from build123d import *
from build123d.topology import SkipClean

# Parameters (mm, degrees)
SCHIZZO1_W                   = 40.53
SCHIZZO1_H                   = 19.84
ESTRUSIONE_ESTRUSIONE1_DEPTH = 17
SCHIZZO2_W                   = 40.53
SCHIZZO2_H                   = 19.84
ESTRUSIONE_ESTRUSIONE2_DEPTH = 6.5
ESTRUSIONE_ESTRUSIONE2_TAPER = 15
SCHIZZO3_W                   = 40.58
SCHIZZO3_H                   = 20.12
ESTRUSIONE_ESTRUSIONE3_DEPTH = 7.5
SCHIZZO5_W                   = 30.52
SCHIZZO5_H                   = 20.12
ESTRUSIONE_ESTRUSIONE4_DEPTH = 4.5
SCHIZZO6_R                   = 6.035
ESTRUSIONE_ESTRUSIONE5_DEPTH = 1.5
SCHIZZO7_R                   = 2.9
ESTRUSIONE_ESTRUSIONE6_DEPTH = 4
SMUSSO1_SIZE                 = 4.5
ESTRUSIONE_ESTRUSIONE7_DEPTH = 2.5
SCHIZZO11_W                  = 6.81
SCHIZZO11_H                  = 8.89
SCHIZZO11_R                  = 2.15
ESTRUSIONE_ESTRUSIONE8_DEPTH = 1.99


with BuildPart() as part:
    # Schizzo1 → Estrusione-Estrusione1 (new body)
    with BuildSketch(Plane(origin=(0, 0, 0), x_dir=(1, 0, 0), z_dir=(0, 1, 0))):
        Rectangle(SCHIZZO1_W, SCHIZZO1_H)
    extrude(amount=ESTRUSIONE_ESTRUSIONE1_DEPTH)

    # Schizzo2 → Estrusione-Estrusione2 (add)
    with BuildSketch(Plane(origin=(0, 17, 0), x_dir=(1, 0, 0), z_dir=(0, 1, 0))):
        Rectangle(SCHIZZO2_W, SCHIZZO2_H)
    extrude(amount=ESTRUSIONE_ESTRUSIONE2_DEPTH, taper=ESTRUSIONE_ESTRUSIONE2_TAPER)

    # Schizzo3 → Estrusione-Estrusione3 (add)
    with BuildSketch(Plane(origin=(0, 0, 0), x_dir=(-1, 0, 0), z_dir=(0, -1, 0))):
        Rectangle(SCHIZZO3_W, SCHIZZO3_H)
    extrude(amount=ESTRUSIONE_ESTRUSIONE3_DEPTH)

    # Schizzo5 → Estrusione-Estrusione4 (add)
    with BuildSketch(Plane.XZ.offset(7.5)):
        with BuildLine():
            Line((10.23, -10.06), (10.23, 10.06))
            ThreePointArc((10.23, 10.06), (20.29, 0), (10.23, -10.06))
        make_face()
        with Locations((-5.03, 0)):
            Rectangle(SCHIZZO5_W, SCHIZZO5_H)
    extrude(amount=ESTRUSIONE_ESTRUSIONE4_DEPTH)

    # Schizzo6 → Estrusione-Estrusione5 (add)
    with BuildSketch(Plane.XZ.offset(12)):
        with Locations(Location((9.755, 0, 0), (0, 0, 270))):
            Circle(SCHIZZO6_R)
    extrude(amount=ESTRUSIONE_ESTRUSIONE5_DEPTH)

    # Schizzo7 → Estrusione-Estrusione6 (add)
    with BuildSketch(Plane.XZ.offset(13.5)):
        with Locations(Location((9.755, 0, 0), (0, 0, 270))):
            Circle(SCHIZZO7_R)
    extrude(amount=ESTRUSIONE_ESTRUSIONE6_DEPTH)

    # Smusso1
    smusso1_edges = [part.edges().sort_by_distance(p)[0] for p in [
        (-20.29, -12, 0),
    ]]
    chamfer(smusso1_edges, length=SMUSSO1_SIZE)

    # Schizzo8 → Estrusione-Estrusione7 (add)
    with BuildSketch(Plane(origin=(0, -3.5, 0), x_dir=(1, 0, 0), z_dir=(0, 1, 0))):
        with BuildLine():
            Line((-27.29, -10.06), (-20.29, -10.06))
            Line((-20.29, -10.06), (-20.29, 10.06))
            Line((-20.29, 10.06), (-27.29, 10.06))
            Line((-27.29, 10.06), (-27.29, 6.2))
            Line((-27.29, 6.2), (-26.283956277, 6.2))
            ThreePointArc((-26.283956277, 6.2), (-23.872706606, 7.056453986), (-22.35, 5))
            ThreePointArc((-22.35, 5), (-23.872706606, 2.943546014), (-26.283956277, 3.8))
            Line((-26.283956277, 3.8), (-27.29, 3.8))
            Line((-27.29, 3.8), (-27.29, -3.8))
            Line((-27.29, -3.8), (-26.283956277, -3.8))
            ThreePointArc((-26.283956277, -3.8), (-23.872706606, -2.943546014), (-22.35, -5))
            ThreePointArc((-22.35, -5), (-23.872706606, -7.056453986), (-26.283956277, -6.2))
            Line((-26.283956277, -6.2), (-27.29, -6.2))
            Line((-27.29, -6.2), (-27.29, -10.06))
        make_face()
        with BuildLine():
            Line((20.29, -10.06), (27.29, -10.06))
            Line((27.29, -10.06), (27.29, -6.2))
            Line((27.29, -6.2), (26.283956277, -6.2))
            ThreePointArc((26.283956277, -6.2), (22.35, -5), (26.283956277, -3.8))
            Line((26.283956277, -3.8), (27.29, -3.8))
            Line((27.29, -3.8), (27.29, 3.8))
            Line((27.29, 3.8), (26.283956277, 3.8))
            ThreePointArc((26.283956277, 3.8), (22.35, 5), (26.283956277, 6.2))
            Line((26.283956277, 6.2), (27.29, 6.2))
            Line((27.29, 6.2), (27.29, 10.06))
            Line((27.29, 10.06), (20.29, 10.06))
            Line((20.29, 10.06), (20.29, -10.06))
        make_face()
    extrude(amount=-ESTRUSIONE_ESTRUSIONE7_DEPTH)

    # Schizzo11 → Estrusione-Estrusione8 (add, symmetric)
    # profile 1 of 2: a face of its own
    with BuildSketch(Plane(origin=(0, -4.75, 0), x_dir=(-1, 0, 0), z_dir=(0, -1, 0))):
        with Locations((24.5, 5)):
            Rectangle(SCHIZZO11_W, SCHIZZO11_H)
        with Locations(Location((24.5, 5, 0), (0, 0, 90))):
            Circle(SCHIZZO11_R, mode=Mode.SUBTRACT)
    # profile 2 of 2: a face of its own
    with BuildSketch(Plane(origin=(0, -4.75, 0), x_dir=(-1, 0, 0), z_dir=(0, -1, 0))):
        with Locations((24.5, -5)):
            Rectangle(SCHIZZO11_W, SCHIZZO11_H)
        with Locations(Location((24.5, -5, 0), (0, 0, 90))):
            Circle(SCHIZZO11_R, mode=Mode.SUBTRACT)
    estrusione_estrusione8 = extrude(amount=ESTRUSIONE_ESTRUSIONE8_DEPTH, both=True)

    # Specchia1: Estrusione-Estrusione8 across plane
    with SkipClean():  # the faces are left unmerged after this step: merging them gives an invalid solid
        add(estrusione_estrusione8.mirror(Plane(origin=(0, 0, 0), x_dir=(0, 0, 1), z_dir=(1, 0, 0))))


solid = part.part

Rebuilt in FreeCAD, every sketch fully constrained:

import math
import FreeCAD as App
import Part
import Sketcher

V = App.Vector


def edges_at(feature, points):
    """Names of the edges that pass closest to the given points."""
    edges = feature.Shape.Edges
    near = lambda p: min(range(len(edges)), key=lambda i: edges[i].distToShape(Part.Vertex(*p))[0])
    return sorted({f"Edge{near(p) + 1}" for p in points})

doc = App.newDocument("Part")
body = doc.addObject("PartDesign::Body", "Body")

# Sketch on XZ plane
sketch1 = body.newObject("Sketcher::SketchObject", "Sketch")
sketch1.AttachmentSupport = (doc.getObject("XZ_Plane"), [""])
sketch1.MapMode = "FlatFace"
sketch1.addGeometry([
    Part.LineSegment(V(-20.265, -9.92, 0), V(-20.265, 9.92, 0)),
    Part.LineSegment(V(-20.265, 9.92, 0), V(20.265, 9.92, 0)),
    Part.LineSegment(V(20.265, 9.92, 0), V(20.265, -9.92, 0)),
    Part.LineSegment(V(20.265, -9.92, 0), V(-20.265, -9.92, 0)),
], False)
sketch1.addConstraint([
    Sketcher.Constraint("Coincident", 0, 2, 1, 1),
    Sketcher.Constraint("Coincident", 1, 2, 2, 1),
    Sketcher.Constraint("Coincident", 2, 2, 3, 1),
    Sketcher.Constraint("Coincident", 3, 2, 0, 1),
    Sketcher.Constraint("Vertical", 0),
    Sketcher.Constraint("Horizontal", 1),
    Sketcher.Constraint("Vertical", 2),
    Sketcher.Constraint("Horizontal", 3),
    Sketcher.Constraint("Symmetric", 0, 2, 2, 2, -1, 1),
    Sketcher.Constraint("DistanceX", 1, 1, 1, 2, 40.53),
    Sketcher.Constraint("DistanceY", 0, 1, 0, 2, 19.84),
])
pad1 = body.newObject("PartDesign::Pad", "Pad")
pad1.Profile = sketch1
pad1.Length = 17
pad1.Reversed = True

# Sketch on XZ plane
sketch2 = body.newObject("Sketcher::SketchObject", "Sketch001")
sketch2.AttachmentSupport = (doc.getObject("XZ_Plane"), [""])
sketch2.MapMode = "FlatFace"
sketch2.AttachmentOffset = App.Placement(V(0, 0, -17), App.Rotation())
sketch2.addGeometry([
    Part.LineSegment(V(-20.265, -9.92, 0), V(-20.265, 9.92, 0)),
    Part.LineSegment(V(-20.265, 9.92, 0), V(20.265, 9.92, 0)),
    Part.LineSegment(V(20.265, 9.92, 0), V(20.265, -9.92, 0)),
    Part.LineSegment(V(20.265, -9.92, 0), V(-20.265, -9.92, 0)),
], False)
sketch2.addConstraint([
    Sketcher.Constraint("Coincident", 0, 2, 1, 1),
    Sketcher.Constraint("Coincident", 1, 2, 2, 1),
    Sketcher.Constraint("Coincident", 2, 2, 3, 1),
    Sketcher.Constraint("Coincident", 3, 2, 0, 1),
    Sketcher.Constraint("Vertical", 0),
    Sketcher.Constraint("Horizontal", 1),
    Sketcher.Constraint("Vertical", 2),
    Sketcher.Constraint("Horizontal", 3),
    Sketcher.Constraint("Symmetric", 0, 2, 2, 2, -1, 1),
    Sketcher.Constraint("DistanceX", 1, 1, 1, 2, 40.53),
    Sketcher.Constraint("DistanceY", 0, 1, 0, 2, 19.84),
])
pad2 = body.newObject("PartDesign::Pad", "Pad001")
pad2.Profile = sketch2
pad2.Length = 6.5
pad2.Reversed = True
pad2.TaperAngle = -15

# Sketch on XZ plane
sketch3 = body.newObject("Sketcher::SketchObject", "Sketch002")
sketch3.AttachmentSupport = (doc.getObject("XZ_Plane"), [""])
sketch3.MapMode = "FlatFace"
sketch3.addGeometry([
    Part.LineSegment(V(20.29, -10.06, 0), V(20.29, 10.06, 0)),
    Part.LineSegment(V(20.29, 10.06, 0), V(-20.29, 10.06, 0)),
    Part.LineSegment(V(-20.29, 10.06, 0), V(-20.29, -10.06, 0)),
    Part.LineSegment(V(-20.29, -10.06, 0), V(20.29, -10.06, 0)),
], False)
sketch3.addConstraint([
    Sketcher.Constraint("Coincident", 0, 2, 1, 1),
    Sketcher.Constraint("Coincident", 1, 2, 2, 1),
    Sketcher.Constraint("Coincident", 2, 2, 3, 1),
    Sketcher.Constraint("Coincident", 3, 2, 0, 1),
    Sketcher.Constraint("Vertical", 0),
    Sketcher.Constraint("Horizontal", 1),
    Sketcher.Constraint("Vertical", 2),
    Sketcher.Constraint("Horizontal", 3),
    Sketcher.Constraint("Symmetric", 0, 2, 2, 2, -1, 1),
    Sketcher.Constraint("DistanceX", 1, 2, 1, 1, 40.58),
    Sketcher.Constraint("DistanceY", 0, 1, 0, 2, 20.12),
])
pad3 = body.newObject("PartDesign::Pad", "Pad002")
pad3.Profile = sketch3
pad3.Length = 7.5

# Sketch on XZ plane
sketch4 = body.newObject("Sketcher::SketchObject", "Sketch003")
sketch4.AttachmentSupport = (doc.getObject("XZ_Plane"), [""])
sketch4.MapMode = "FlatFace"
sketch4.AttachmentOffset = App.Placement(V(0, 0, 7.5), App.Rotation())
sketch4.addGeometry([
    Part.ArcOfCircle(Part.Circle(V(10.23, 0, 0), V(0, 0, 1), 10.06), math.radians(-90), math.radians(90)),
    Part.LineSegment(V(10.23, 10.06, 0), V(-20.29, 10.06, 0)),
    Part.LineSegment(V(-20.29, 10.06, 0), V(-20.29, -10.06, 0)),
    Part.LineSegment(V(-20.29, -10.06, 0), V(10.23, -10.06, 0)),
], False)
sketch4.addConstraint([
    Sketcher.Constraint("Tangent", 0, 2, 1, 1),
    Sketcher.Constraint("Coincident", 1, 2, 2, 1),
    Sketcher.Constraint("Coincident", 2, 2, 3, 1),
    Sketcher.Constraint("Tangent", 3, 2, 0, 1),
    Sketcher.Constraint("Horizontal", 1),
    Sketcher.Constraint("Vertical", 2),
    Sketcher.Constraint("Horizontal", 3),
    Sketcher.Constraint("PointOnObject", 0, 3, -1),
    Sketcher.Constraint("Radius", 0, 10.06),
    Sketcher.Constraint("DistanceX", 1, 2, 1, 1, 30.52),
    Sketcher.Constraint("DistanceX", -1, 1, 0, 3, 10.23),
])
pad4 = body.newObject("PartDesign::Pad", "Pad003")
pad4.Profile = sketch4
pad4.Length = 4.5

# Sketch on XZ plane
sketch5 = body.newObject("Sketcher::SketchObject", "Sketch004")
sketch5.AttachmentSupport = (doc.getObject("XZ_Plane"), [""])
sketch5.MapMode = "FlatFace"
sketch5.AttachmentOffset = App.Placement(V(0, 0, 12), App.Rotation())
sketch5.addGeometry(Part.Circle(V(9.755, 0, 0), V(0, 0, 1), 6.035), False)
sketch5.addConstraint([
    Sketcher.Constraint("PointOnObject", 0, 3, -1),
    Sketcher.Constraint("Diameter", 0, 12.07),
    Sketcher.Constraint("DistanceX", -1, 1, 0, 3, 9.755),
])
pad5 = body.newObject("PartDesign::Pad", "Pad004")
pad5.Profile = sketch5
pad5.Length = 1.5

# Sketch on XZ plane
sketch6 = body.newObject("Sketcher::SketchObject", "Sketch005")
sketch6.AttachmentSupport = (doc.getObject("XZ_Plane"), [""])
sketch6.MapMode = "FlatFace"
sketch6.AttachmentOffset = App.Placement(V(0, 0, 13.5), App.Rotation())
sketch6.addGeometry(Part.Circle(V(9.755, 0, 0), V(0, 0, 1), 2.9), False)
sketch6.addConstraint([
    Sketcher.Constraint("PointOnObject", 0, 3, -1),
    Sketcher.Constraint("Diameter", 0, 5.8),
    Sketcher.Constraint("DistanceX", -1, 1, 0, 3, 9.755),
])
pad6 = body.newObject("PartDesign::Pad", "Pad005")
pad6.Profile = sketch6
pad6.Length = 4
doc.recompute()

chamfer = body.newObject("PartDesign::Chamfer", "Chamfer")
chamfer.Base = (pad6, edges_at(pad6, [(-20.29, -12, 0)]))
chamfer.Size = 4.5

# Sketch on XZ plane
sketch7 = body.newObject("Sketcher::SketchObject", "Sketch006")
sketch7.AttachmentSupport = (doc.getObject("XZ_Plane"), [""])
sketch7.MapMode = "FlatFace"
sketch7.AttachmentOffset = App.Placement(V(0, 0, 3.5), App.Rotation())
sketch7.addGeometry([
    Part.LineSegment(V(-27.29, 10.06, 0), V(-20.29, 10.06, 0)),  # 0
    Part.LineSegment(V(-20.29, 10.06, 0), V(-20.29, -10.06, 0)),  # 1
    Part.LineSegment(V(-20.29, -10.06, 0), V(-27.29, -10.06, 0)),  # 2
    Part.LineSegment(V(-27.29, -10.06, 0), V(-27.29, -6.2, 0)),  # 3
    Part.LineSegment(V(-27.29, -6.2, 0), V(-26.283956, -6.2, 0)),  # 4
    Part.ArcOfCircle(Part.Circle(V(-24.5, -5, 0), V(0, 0, 1), 2.15), math.radians(-146.072768), math.radians(0)),  # 5
    Part.ArcOfCircle(Part.Circle(V(-24.5, -5, 0), V(0, 0, 1), 2.15), math.radians(0), math.radians(146.072768)),  # 6
    Part.LineSegment(V(-26.283956, -3.8, 0), V(-27.29, -3.8, 0)),  # 7
    Part.LineSegment(V(-27.29, -3.8, 0), V(-27.29, 3.8, 0)),  # 8
    Part.LineSegment(V(-27.29, 3.8, 0), V(-26.283956, 3.8, 0)),  # 9
    Part.ArcOfCircle(Part.Circle(V(-24.5, 5, 0), V(0, 0, 1), 2.15), math.radians(-146.072768), math.radians(0)),  # 10
    Part.ArcOfCircle(Part.Circle(V(-24.5, 5, 0), V(0, 0, 1), 2.15), math.radians(0), math.radians(146.072768)),  # 11
    Part.LineSegment(V(-26.283956, 6.2, 0), V(-27.29, 6.2, 0)),  # 12
    Part.LineSegment(V(-27.29, 6.2, 0), V(-27.29, 10.06, 0)),  # 13
    Part.LineSegment(V(20.29, 10.06, 0), V(27.29, 10.06, 0)),  # 14
    Part.LineSegment(V(27.29, 10.06, 0), V(27.29, 6.2, 0)),  # 15
    Part.LineSegment(V(27.29, 6.2, 0), V(26.283956, 6.2, 0)),  # 16
    Part.ArcOfCircle(Part.Circle(V(24.5, 5, 0), V(0, 0, 1), 2.15), math.radians(33.927232), math.radians(326.072768)),  # 17
    Part.LineSegment(V(26.283956, 3.8, 0), V(27.29, 3.8, 0)),  # 18
    Part.LineSegment(V(27.29, 3.8, 0), V(27.29, -3.8, 0)),  # 19
    Part.LineSegment(V(27.29, -3.8, 0), V(26.283956, -3.8, 0)),  # 20
    Part.ArcOfCircle(Part.Circle(V(24.5, -5, 0), V(0, 0, 1), 2.15), math.radians(33.927232), math.radians(326.072768)),  # 21
    Part.LineSegment(V(26.283956, -6.2, 0), V(27.29, -6.2, 0)),  # 22
    Part.LineSegment(V(27.29, -6.2, 0), V(27.29, -10.06, 0)),  # 23
    Part.LineSegment(V(27.29, -10.06, 0), V(20.29, -10.06, 0)),  # 24
    Part.LineSegment(V(20.29, -10.06, 0), V(20.29, 10.06, 0)),  # 25
], False)
sketch7.addConstraint([
    Sketcher.Constraint("Coincident", 0, 2, 1, 1),
    Sketcher.Constraint("Coincident", 1, 2, 2, 1),
    Sketcher.Constraint("Coincident", 2, 2, 3, 1),
    Sketcher.Constraint("Coincident", 3, 2, 4, 1),
    Sketcher.Constraint("Coincident", 4, 2, 5, 1),
    Sketcher.Constraint("Tangent", 5, 2, 6, 1),
    Sketcher.Constraint("Coincident", 6, 2, 7, 1),
    Sketcher.Constraint("Coincident", 7, 2, 8, 1),
    Sketcher.Constraint("Coincident", 8, 2, 9, 1),
    Sketcher.Constraint("Coincident", 9, 2, 10, 1),
    Sketcher.Constraint("Tangent", 10, 2, 11, 1),
    Sketcher.Constraint("Coincident", 11, 2, 12, 1),
    Sketcher.Constraint("Coincident", 12, 2, 13, 1),
    Sketcher.Constraint("Coincident", 13, 2, 0, 1),
    Sketcher.Constraint("Coincident", 14, 2, 15, 1),
    Sketcher.Constraint("Coincident", 15, 2, 16, 1),
    Sketcher.Constraint("Coincident", 16, 2, 17, 1),
    Sketcher.Constraint("Coincident", 17, 2, 18, 1),
    Sketcher.Constraint("Coincident", 18, 2, 19, 1),
    Sketcher.Constraint("Coincident", 19, 2, 20, 1),
    Sketcher.Constraint("Coincident", 20, 2, 21, 1),
    Sketcher.Constraint("Coincident", 21, 2, 22, 1),
    Sketcher.Constraint("Coincident", 22, 2, 23, 1),
    Sketcher.Constraint("Coincident", 23, 2, 24, 1),
    Sketcher.Constraint("Coincident", 24, 2, 25, 1),
    Sketcher.Constraint("Coincident", 25, 2, 14, 1),
    Sketcher.Constraint("Horizontal", 0),
    Sketcher.Constraint("Vertical", 1),
    Sketcher.Constraint("Horizontal", 2),
    Sketcher.Constraint("Vertical", 3),
    Sketcher.Constraint("Horizontal", 4),
    Sketcher.Constraint("Horizontal", 7),
    Sketcher.Constraint("Vertical", 8),
    Sketcher.Constraint("Horizontal", 9),
    Sketcher.Constraint("Horizontal", 12),
    Sketcher.Constraint("Vertical", 13),
    Sketcher.Constraint("Horizontal", 14),
    Sketcher.Constraint("Vertical", 15),
    Sketcher.Constraint("Horizontal", 16),
    Sketcher.Constraint("Horizontal", 18),
    Sketcher.Constraint("Vertical", 19),
    Sketcher.Constraint("Horizontal", 20),
    Sketcher.Constraint("Horizontal", 22),
    Sketcher.Constraint("Vertical", 23),
    Sketcher.Constraint("Horizontal", 24),
    Sketcher.Constraint("Vertical", 25),
    Sketcher.Constraint("Equal", 5, 6),
    Sketcher.Constraint("Equal", 6, 10),
    Sketcher.Constraint("Equal", 10, 11),
    Sketcher.Constraint("Equal", 11, 17),
    Sketcher.Constraint("Equal", 17, 21),
    Sketcher.Constraint("Symmetric", 5, 3, 17, 3, -1, 1),
    Sketcher.Constraint("Symmetric", 10, 3, 21, 3, -1, 1),
    Sketcher.Constraint("Symmetric", 2, 2, 14, 2, -1, 1),
    Sketcher.Constraint("Symmetric", 7, 2, 18, 2, -1, 1),
    Sketcher.Constraint("Symmetric", 12, 2, 22, 2, -1, 1),
    Sketcher.Constraint("Symmetric", 0, 2, 24, 2, -1, 1),
    Sketcher.Constraint("Symmetric", 10, 3, 17, 3, -2),
    Sketcher.Constraint("Symmetric", 13, 2, 14, 2, -2),
    Sketcher.Constraint("Horizontal", 21, 3, 5, 2),
    Sketcher.Constraint("Horizontal", 17, 3, 10, 2),
    Sketcher.Constraint("Horizontal", 12, 2, 15, 2),
    Sketcher.Constraint("Horizontal", 9, 2, 17, 2),
    Sketcher.Constraint("Horizontal", 7, 2, 19, 2),
    Sketcher.Constraint("Horizontal", 4, 2, 21, 2),
    Sketcher.Constraint("Vertical", 4, 2, 6, 2),
    Sketcher.Constraint("Vertical", 3, 2, 7, 2),
    Sketcher.Constraint("DistanceX", 0, 1, 0, 2, 7.0),
    Sketcher.Constraint("Radius", 5, 2.15),
    Sketcher.Constraint("DistanceY", 8, 1, 8, 2, 7.6),
    Sketcher.Constraint("DistanceY", 5, 3, -1, 1, 5.0),
    Sketcher.Constraint("DistanceX", 10, 3, 17, 3, 49.0),
    Sketcher.Constraint("DistanceY", 1, 2, 1, 1, 20.12),
    Sketcher.Constraint("DistanceX", 0, 2, -1, 1, 20.29),
])
pad7 = body.newObject("PartDesign::Pad", "Pad006")
pad7.Profile = sketch7
pad7.Length = 2.5

# Sketch on XZ plane
sketch8 = body.newObject("Sketcher::SketchObject", "Sketch007")
sketch8.AttachmentSupport = (doc.getObject("XZ_Plane"), [""])
sketch8.MapMode = "FlatFace"
sketch8.AttachmentOffset = App.Placement(V(0, 0, 4.75), App.Rotation())
sketch8.addGeometry([
    Part.LineSegment(V(-21.095, -9.445, 0), V(-21.095, -0.555, 0)),  # 0
    Part.LineSegment(V(-21.095, -0.555, 0), V(-27.905, -0.555, 0)),  # 1
    Part.LineSegment(V(-27.905, -0.555, 0), V(-27.905, -9.445, 0)),  # 2
    Part.LineSegment(V(-27.905, -9.445, 0), V(-21.095, -9.445, 0)),  # 3
    Part.Circle(V(-24.5, -5, 0), V(0, 0, 1), 2.15),  # 4
    Part.LineSegment(V(-21.095, 0.555, 0), V(-21.095, 9.445, 0)),  # 5
    Part.LineSegment(V(-21.095, 9.445, 0), V(-27.905, 9.445, 0)),  # 6
    Part.LineSegment(V(-27.905, 9.445, 0), V(-27.905, 0.555, 0)),  # 7
    Part.LineSegment(V(-27.905, 0.555, 0), V(-21.095, 0.555, 0)),  # 8
    Part.Circle(V(-24.5, 5, 0), V(0, 0, 1), 2.15),  # 9
], False)
sketch8.addConstraint([
    Sketcher.Constraint("Coincident", 0, 2, 1, 1),
    Sketcher.Constraint("Coincident", 1, 2, 2, 1),
    Sketcher.Constraint("Coincident", 2, 2, 3, 1),
    Sketcher.Constraint("Coincident", 3, 2, 0, 1),
    Sketcher.Constraint("Coincident", 5, 2, 6, 1),
    Sketcher.Constraint("Coincident", 6, 2, 7, 1),
    Sketcher.Constraint("Coincident", 7, 2, 8, 1),
    Sketcher.Constraint("Coincident", 8, 2, 5, 1),
    Sketcher.Constraint("Vertical", 0),
    Sketcher.Constraint("Horizontal", 1),
    Sketcher.Constraint("Vertical", 2),
    Sketcher.Constraint("Horizontal", 3),
    Sketcher.Constraint("Vertical", 5),
    Sketcher.Constraint("Horizontal", 6),
    Sketcher.Constraint("Vertical", 7),
    Sketcher.Constraint("Horizontal", 8),
    Sketcher.Constraint("Equal", 4, 9),
    Sketcher.Constraint("Symmetric", 4, 3, 9, 3, -1),
    Sketcher.Constraint("Symmetric", 3, 2, 5, 2, -1),
    Sketcher.Constraint("Symmetric", 1, 2, 7, 2, -1),
    Sketcher.Constraint("Diameter", 4, 4.3),
    Sketcher.Constraint("DistanceY", 4, 3, -1, 1, 5.0),
    Sketcher.Constraint("DistanceY", 0, 2, 5, 2, 10.0),
    Sketcher.Constraint("DistanceX", 1, 2, 1, 1, 6.81),
    Sketcher.Constraint("DistanceY", 0, 1, 0, 2, 8.89),
    Sketcher.Constraint("DistanceX", 4, 3, -1, 1, 24.5),
    Sketcher.Constraint("DistanceX", 0, 2, -1, 1, 21.095),
])
pad8 = body.newObject("PartDesign::Pad", "Pad007")
pad8.Profile = sketch8
pad8.Length = 3.98
pad8.Midplane = True
doc.recompute()

mirrored = body.newObject("PartDesign::Mirrored", "Mirrored")
mirrored.Originals = [pad8]
mirrored.MirrorPlane = (doc.getObject("YZ_Plane"), [""])
body.Tip = mirrored

doc.recompute()
